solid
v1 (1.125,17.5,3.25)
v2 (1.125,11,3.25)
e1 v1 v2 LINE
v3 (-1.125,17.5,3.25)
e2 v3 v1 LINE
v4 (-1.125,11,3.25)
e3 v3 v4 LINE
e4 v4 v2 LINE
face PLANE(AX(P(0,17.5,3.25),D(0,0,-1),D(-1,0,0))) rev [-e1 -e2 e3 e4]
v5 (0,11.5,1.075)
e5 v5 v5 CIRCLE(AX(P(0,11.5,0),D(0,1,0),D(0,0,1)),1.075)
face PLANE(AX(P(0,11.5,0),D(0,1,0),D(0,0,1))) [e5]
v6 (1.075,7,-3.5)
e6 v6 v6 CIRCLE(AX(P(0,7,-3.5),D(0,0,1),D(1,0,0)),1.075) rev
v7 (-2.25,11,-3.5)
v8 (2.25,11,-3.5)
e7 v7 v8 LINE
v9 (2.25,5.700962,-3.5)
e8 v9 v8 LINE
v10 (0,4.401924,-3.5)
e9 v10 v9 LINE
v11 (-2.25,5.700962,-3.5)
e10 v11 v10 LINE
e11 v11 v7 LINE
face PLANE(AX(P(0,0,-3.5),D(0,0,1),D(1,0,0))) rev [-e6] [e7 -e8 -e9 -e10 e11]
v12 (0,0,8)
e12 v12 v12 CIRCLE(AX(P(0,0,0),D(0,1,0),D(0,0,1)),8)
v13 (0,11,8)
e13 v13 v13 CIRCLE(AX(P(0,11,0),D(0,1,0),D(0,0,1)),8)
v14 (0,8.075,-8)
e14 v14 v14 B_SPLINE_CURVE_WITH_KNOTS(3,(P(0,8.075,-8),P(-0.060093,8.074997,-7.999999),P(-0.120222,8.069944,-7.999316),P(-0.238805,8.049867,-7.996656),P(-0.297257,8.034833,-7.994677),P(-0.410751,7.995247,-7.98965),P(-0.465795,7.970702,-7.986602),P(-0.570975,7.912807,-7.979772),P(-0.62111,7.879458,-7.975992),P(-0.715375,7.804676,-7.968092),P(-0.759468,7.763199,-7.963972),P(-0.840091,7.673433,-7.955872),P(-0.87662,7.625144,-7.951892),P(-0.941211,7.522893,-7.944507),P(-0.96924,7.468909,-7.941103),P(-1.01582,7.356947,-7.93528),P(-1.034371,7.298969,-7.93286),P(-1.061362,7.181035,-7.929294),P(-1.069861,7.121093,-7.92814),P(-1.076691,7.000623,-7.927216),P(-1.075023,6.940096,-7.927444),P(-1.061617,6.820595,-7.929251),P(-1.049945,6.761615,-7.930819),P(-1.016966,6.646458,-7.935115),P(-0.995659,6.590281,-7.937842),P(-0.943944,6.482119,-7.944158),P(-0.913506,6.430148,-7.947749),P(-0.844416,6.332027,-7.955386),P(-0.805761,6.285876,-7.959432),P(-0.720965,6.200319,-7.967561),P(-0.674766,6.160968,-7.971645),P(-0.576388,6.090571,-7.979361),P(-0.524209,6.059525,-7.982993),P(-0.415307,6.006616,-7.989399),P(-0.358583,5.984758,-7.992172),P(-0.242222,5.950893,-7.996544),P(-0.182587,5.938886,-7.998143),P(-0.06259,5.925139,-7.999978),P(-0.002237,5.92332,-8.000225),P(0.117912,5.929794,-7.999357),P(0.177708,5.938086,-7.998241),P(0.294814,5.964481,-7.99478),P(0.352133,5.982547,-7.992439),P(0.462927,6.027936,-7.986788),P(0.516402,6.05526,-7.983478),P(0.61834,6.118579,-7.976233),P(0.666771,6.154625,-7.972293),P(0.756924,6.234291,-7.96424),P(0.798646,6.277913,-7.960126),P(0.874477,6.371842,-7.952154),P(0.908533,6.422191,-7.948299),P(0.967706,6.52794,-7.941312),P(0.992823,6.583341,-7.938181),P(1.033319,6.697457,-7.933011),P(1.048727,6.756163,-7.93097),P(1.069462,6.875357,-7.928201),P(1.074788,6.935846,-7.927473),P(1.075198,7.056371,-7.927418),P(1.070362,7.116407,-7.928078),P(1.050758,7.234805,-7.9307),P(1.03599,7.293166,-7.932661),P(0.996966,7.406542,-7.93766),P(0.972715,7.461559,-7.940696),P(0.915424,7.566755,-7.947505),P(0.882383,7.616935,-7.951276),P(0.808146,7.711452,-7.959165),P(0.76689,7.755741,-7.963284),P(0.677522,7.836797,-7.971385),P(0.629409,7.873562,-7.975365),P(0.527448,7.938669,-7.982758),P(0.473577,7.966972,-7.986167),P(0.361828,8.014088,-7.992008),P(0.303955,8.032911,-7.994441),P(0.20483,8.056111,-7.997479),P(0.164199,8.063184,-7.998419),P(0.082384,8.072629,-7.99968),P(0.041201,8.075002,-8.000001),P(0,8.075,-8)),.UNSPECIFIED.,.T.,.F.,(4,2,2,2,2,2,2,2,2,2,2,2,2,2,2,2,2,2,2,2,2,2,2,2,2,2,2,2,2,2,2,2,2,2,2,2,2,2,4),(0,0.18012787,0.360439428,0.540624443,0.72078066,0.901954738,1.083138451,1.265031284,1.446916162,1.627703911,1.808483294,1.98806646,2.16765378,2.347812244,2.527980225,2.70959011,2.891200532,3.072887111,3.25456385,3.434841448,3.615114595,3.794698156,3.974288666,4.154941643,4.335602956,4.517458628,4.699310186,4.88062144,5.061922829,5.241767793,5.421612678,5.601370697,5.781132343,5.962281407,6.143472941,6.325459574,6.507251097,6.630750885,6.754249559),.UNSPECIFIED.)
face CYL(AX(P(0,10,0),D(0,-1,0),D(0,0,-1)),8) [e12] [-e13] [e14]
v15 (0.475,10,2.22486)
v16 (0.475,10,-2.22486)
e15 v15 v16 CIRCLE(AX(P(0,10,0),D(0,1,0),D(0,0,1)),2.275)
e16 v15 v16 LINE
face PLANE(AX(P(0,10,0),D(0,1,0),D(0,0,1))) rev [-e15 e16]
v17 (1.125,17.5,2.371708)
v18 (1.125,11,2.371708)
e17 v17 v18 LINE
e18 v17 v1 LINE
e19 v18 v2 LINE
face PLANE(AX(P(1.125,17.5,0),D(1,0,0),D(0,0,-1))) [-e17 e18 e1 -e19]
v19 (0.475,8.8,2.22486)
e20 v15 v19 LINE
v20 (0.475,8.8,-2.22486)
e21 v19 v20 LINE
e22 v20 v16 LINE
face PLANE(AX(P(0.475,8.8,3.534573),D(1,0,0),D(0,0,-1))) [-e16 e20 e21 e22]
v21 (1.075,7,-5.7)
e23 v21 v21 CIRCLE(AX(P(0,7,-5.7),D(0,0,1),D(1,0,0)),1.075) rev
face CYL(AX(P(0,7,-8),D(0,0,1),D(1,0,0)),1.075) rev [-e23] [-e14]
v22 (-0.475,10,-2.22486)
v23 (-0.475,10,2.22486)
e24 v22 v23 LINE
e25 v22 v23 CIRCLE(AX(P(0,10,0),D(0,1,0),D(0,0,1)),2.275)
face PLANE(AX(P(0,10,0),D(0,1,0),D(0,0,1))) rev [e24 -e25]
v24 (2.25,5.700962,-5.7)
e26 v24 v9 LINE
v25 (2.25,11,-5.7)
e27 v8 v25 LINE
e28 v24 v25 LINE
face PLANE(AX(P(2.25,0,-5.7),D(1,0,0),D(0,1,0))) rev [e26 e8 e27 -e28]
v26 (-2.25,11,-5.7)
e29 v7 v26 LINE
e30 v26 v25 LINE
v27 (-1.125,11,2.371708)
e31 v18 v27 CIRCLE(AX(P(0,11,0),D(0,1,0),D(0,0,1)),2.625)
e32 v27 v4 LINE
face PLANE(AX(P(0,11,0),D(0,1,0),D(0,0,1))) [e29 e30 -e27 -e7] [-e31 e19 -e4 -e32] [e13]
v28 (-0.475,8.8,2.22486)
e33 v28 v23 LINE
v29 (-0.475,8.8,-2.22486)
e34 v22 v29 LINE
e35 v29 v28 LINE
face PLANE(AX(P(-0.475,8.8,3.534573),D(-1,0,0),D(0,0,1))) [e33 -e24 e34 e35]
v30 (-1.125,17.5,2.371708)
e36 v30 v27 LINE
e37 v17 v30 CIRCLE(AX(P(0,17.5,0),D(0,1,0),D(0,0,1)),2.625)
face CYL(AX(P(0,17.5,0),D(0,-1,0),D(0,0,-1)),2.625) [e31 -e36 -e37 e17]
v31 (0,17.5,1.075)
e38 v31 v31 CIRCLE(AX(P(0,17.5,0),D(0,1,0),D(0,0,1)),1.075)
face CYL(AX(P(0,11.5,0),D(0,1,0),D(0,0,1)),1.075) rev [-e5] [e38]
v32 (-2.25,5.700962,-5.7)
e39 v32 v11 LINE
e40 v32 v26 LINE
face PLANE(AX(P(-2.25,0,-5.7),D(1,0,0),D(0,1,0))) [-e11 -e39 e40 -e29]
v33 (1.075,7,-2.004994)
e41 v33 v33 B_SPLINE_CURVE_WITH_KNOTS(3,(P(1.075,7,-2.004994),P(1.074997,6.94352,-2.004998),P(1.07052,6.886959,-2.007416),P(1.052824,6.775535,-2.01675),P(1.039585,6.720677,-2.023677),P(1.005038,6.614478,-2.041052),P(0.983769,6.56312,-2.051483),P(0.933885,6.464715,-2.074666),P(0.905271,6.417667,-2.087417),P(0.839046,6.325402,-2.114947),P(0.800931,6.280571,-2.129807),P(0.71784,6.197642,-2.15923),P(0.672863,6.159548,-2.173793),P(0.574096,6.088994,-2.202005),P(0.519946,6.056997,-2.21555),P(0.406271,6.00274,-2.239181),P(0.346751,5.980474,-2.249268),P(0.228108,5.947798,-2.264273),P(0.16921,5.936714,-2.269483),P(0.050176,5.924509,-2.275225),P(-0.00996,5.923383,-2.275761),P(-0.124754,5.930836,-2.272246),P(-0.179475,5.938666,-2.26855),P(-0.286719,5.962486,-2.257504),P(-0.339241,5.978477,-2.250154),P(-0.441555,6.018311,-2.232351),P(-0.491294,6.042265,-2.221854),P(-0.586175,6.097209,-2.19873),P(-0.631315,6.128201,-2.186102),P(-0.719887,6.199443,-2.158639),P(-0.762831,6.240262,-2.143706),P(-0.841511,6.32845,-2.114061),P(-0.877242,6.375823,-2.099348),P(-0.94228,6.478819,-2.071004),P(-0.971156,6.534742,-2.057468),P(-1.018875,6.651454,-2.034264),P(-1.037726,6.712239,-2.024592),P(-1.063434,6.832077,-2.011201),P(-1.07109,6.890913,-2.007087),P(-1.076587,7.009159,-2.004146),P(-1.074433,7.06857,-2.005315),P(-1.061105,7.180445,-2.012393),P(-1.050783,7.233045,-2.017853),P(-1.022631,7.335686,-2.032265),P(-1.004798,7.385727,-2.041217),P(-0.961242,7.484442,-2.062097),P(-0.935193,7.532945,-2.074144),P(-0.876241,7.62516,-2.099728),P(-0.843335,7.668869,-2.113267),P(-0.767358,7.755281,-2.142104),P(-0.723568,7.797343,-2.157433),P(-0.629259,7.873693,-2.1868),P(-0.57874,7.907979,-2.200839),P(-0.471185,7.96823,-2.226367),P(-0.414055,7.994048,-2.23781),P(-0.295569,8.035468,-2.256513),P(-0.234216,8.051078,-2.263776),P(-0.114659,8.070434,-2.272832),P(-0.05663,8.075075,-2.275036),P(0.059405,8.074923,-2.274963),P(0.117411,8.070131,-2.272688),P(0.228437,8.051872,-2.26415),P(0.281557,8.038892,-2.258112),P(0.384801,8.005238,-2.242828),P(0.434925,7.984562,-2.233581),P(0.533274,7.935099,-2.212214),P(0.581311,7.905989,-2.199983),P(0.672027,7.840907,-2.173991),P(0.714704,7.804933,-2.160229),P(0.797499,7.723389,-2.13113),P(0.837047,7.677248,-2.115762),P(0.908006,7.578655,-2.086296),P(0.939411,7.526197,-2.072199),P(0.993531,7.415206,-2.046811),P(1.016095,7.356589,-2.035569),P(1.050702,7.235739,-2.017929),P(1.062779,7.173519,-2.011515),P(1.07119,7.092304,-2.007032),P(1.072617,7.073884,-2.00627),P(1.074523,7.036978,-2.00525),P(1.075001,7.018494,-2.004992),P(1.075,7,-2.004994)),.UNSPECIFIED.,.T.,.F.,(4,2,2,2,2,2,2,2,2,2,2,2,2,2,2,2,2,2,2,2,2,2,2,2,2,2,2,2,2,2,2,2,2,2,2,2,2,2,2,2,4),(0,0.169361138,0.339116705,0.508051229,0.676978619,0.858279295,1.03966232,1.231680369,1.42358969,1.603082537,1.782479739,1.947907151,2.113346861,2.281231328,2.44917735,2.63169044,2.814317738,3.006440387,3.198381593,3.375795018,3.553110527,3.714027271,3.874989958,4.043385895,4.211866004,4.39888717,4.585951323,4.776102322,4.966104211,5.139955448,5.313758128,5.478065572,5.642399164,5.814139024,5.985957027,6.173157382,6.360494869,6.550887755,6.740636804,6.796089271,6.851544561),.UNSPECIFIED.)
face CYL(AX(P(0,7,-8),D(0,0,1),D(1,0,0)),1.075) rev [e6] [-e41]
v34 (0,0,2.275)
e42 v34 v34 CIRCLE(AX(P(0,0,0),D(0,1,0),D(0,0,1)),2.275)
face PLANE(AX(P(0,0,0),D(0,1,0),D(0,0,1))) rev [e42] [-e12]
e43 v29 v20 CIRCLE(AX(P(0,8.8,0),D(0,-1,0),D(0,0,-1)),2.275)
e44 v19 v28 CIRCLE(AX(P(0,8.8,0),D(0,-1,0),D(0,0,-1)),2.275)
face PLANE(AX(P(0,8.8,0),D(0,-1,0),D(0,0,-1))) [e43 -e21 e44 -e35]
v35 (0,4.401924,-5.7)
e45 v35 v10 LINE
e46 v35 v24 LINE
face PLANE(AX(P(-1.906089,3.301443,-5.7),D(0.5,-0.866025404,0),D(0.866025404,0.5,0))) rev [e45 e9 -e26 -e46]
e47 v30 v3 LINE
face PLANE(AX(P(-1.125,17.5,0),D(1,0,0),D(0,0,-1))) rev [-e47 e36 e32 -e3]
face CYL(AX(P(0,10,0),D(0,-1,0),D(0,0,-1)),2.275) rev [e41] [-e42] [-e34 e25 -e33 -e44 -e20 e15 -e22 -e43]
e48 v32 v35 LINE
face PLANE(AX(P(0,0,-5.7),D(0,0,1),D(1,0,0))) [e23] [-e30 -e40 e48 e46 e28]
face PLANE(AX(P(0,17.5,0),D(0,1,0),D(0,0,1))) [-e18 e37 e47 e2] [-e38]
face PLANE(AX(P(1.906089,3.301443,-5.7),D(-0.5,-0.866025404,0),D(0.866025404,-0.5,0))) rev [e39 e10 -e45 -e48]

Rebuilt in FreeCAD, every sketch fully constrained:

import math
import FreeCAD as App
import Part
import Sketcher

V = App.Vector
Q = App.Units.Quantity


def add_polygon(sketch, points):
    """Adds a closed chain of lines whose ends are joined by coincident constraints."""
    first, n = sketch.GeometryCount, len(points)
    for a, b in zip(points, points[1:] + points[:1]):
        sketch.addGeometry(Part.LineSegment(App.Vector(*a, 0), App.Vector(*b, 0)), False)
    for i in range(n):
        sketch.addConstraint(Sketcher.Constraint("Coincident", first + i, 2, first + (i + 1) % n, 1))

doc = App.newDocument("Part")
body = doc.addObject("PartDesign::Body", "Body")

# Sketch on XZ plane
sketch1 = body.newObject("Sketcher::SketchObject", "Sketch")
sketch1.AttachmentSupport = (doc.getObject("XZ_Plane"), [""])
sketch1.MapMode = "FlatFace"
sketch1.addGeometry(Part.Circle(V(0, 0, 0), V(0, 0, 1), 8), False)
sketch1.addConstraint(Sketcher.Constraint("Coincident", 0, 3, -1, 1))
sketch1.addConstraint(Sketcher.Constraint("Diameter", 0, Q("16 mm")))
pad1 = body.newObject("PartDesign::Pad", "Pad")
pad1.Profile = sketch1
pad1.Length = 10
pad1.Reversed = True

# Sketch on XY plane
sketch2 = body.newObject("Sketcher::SketchObject", "Sketch001")
sketch2.AttachmentSupport = (doc.getObject("XY_Plane"), [""])
sketch2.MapMode = "FlatFace"
sketch2.addGeometry(Part.Circle(V(0, 7, 0), V(0, 0, 1), 1.1), False)
sketch2.addConstraint(Sketcher.Constraint("PointOnObject", 0, 3, -2))
sketch2.addConstraint(Sketcher.Constraint("Diameter", 0, Q("2.15 mm")))
sketch2.addConstraint(Sketcher.Constraint("DistanceY", -1, 1, 0, 3, Q("7 mm")))
pocket1 = body.newObject("PartDesign::Pocket", "Pocket")
pocket1.Profile = sketch2
pocket1.Type = "ThroughAll"

# Sketch on XZ plane
sketch3 = body.newObject("Sketcher::SketchObject", "Sketch002")
sketch3.AttachmentSupport = (doc.getObject("XZ_Plane"), [""])
sketch3.MapMode = "FlatFace"
sketch3.addGeometry(Part.Circle(V(0, 0, 0), V(0, 0, 1), 2.3), False)
sketch3.addConstraint(Sketcher.Constraint("Coincident", 0, 3, -1, 1))
sketch3.addConstraint(Sketcher.Constraint("Diameter", 0, Q("4.55 mm")))
pocket2 = body.newObject("PartDesign::Pocket", "Pocket001")
pocket2.Profile = sketch3
pocket2.Type = "ThroughAll"

# Sketch on XZ plane
sketch4 = body.newObject("Sketcher::SketchObject", "Sketch003")
sketch4.AttachmentSupport = (doc.getObject("XZ_Plane"), [""])
sketch4.MapMode = "FlatFace"
sketch4.AttachmentOffset = App.Placement(V(0, 0, -10), App.Rotation())
add_polygon(sketch4, [(-0.5, -3.5), (-0.5, 3.5), (0.5, 3.5), (0.5, -3.5)])  # lines 0-3
sketch4.addConstraint(Sketcher.Constraint("Vertical", 0))
sketch4.addConstraint(Sketcher.Constraint("Horizontal", 1))
sketch4.addConstraint(Sketcher.Constraint("Vertical", 2))
sketch4.addConstraint(Sketcher.Constraint("Horizontal", 3))
sketch4.addConstraint(Sketcher.Constraint("Symmetric", 0, 2, 2, 2, -1, 1))
sketch4.addConstraint(Sketcher.Constraint("DistanceX", 1, 1, 1, 2, Q("0.95 mm")))
sketch4.addConstraint(Sketcher.Constraint("DistanceY", 0, 1, 0, 2, Q("7.069147 mm")))
pad2 = body.newObject("PartDesign::Pad", "Pad001")
pad2.Profile = sketch4
pad2.Length = 1.2

# Sketch on XZ plane
sketch5 = body.newObject("Sketcher::SketchObject", "Sketch004")
sketch5.AttachmentSupport = (doc.getObject("XZ_Plane"), [""])
sketch5.MapMode = "FlatFace"
sketch5.AttachmentOffset = App.Placement(V(0, 0, -10), App.Rotation())
sketch5.addGeometry(Part.Circle(V(0, 0, 0), V(0, 0, 1), 8), False)
sketch5.addConstraint(Sketcher.Constraint("Coincident", 0, 3, -1, 1))
sketch5.addConstraint(Sketcher.Constraint("Diameter", 0, Q("16 mm")))
pad3 = body.newObject("PartDesign::Pad", "Pad002")
pad3.Profile = sketch5
pad3.Length = 1
pad3.Reversed = True

# Sketch on XZ plane
sketch6 = body.newObject("Sketcher::SketchObject", "Sketch005")
sketch6.AttachmentSupport = (doc.getObject("XZ_Plane"), [""])
sketch6.MapMode = "FlatFace"
sketch6.AttachmentOffset = App.Placement(V(0, 0, -11), App.Rotation())
sketch6.addGeometry(Part.ArcOfCircle(Part.Circle(V(0, 0, 0), V(0, 0, 1), 2.6), math.radians(115), math.radians(425)), False)
sketch6.addGeometry(Part.LineSegment(V(-1.1, 2.4, 0), V(-1.1, 3.2, 0)), False)
sketch6.addGeometry(Part.LineSegment(V(-1.1, 3.2, 0), V(1.1, 3.2, 0)), False)
sketch6.addGeometry(Part.LineSegment(V(1.1, 3.2, 0), V(1.1, 2.4, 0)), False)
sketch6.addConstraint(Sketcher.Constraint("Coincident", 0, 1, 1, 1))
sketch6.addConstraint(Sketcher.Constraint("Coincident", 1, 2, 2, 1))
sketch6.addConstraint(Sketcher.Constraint("Coincident", 2, 2, 3, 1))
sketch6.addConstraint(Sketcher.Constraint("Coincident", 3, 2, 0, 2))
sketch6.addConstraint(Sketcher.Constraint("Vertical", 1))
sketch6.addConstraint(Sketcher.Constraint("Horizontal", 2))
sketch6.addConstraint(Sketcher.Constraint("Vertical", 3))
sketch6.addConstraint(Sketcher.Constraint("Coincident", 0, 3, -1, 1))
sketch6.addConstraint(Sketcher.Constraint("Horizontal", 0, 1, 3, 2))
sketch6.addConstraint(Sketcher.Constraint("Radius", 0, Q("2.625 mm")))
sketch6.addConstraint(Sketcher.Constraint("DistanceX", 2, 1, 2, 2, Q("2.25 mm")))
sketch6.addConstraint(Sketcher.Constraint("DistanceY", -1, 1, 1, 2, Q("3.25 mm")))
pad4 = body.newObject("PartDesign::Pad", "Pad003")
pad4.Profile = sketch6
pad4.Length = 6.5
pad4.Reversed = True

# Sketch on XZ plane
sketch7 = body.newObject("Sketcher::SketchObject", "Sketch006")
sketch7.AttachmentSupport = (doc.getObject("XZ_Plane"), [""])
sketch7.MapMode = "FlatFace"
sketch7.AttachmentOffset = App.Placement(V(0, 0, -17.5), App.Rotation())
sketch7.addGeometry(Part.Circle(V(0, 0, 0), V(0, 0, 1), 1.1), False)
sketch7.addConstraint(Sketcher.Constraint("Coincident", 0, 3, -1, 1))
sketch7.addConstraint(Sketcher.Constraint("Diameter", 0, Q("2.15 mm")))
pocket3 = body.newObject("PartDesign::Pocket", "Pocket002")
pocket3.Profile = sketch7
pocket3.Length = 6
pocket3.Reversed = True

# Sketch on XY plane
sketch8 = body.newObject("Sketcher::SketchObject", "Sketch007")
sketch8.AttachmentSupport = (doc.getObject("XY_Plane"), [""])
sketch8.MapMode = "FlatFace"
sketch8.AttachmentOffset = App.Placement(V(0, 0, -3.5), App.Rotation())
add_polygon(sketch8, [(0, 4.4), (2.2, 5.7), (2.2, 11.5), (-2.2, 11.5), (-2.2, 5.7)])  # lines 0-4
sketch8.addConstraint(Sketcher.Constraint("Vertical", 1))
sketch8.addConstraint(Sketcher.Constraint("Horizontal", 2))
sketch8.addConstraint(Sketcher.Constraint("Vertical", 3))
sketch8.addConstraint(Sketcher.Constraint("Symmetric", 0, 2, 3, 2, -2))
sketch8.addConstraint(Sketcher.Constraint("PointOnObject", 4, 2, -2))
sketch8.addConstraint(Sketcher.Constraint("Angle", 0, Q("30 deg")))
sketch8.addConstraint(Sketcher.Constraint("DistanceX", 2, 2, 2, 1, Q("4.5 mm")))
sketch8.addConstraint(Sketcher.Constraint("DistanceY", 1, 1, 1, 2, Q("5.771841 mm")))
sketch8.addConstraint(Sketcher.Constraint("DistanceY", -1, 1, 0, 2, Q("5.700962 mm")))
pocket4 = body.newObject("PartDesign::Pocket", "Pocket003")
pocket4.Profile = sketch8
pocket4.Length = 2.2

doc.recompute()
